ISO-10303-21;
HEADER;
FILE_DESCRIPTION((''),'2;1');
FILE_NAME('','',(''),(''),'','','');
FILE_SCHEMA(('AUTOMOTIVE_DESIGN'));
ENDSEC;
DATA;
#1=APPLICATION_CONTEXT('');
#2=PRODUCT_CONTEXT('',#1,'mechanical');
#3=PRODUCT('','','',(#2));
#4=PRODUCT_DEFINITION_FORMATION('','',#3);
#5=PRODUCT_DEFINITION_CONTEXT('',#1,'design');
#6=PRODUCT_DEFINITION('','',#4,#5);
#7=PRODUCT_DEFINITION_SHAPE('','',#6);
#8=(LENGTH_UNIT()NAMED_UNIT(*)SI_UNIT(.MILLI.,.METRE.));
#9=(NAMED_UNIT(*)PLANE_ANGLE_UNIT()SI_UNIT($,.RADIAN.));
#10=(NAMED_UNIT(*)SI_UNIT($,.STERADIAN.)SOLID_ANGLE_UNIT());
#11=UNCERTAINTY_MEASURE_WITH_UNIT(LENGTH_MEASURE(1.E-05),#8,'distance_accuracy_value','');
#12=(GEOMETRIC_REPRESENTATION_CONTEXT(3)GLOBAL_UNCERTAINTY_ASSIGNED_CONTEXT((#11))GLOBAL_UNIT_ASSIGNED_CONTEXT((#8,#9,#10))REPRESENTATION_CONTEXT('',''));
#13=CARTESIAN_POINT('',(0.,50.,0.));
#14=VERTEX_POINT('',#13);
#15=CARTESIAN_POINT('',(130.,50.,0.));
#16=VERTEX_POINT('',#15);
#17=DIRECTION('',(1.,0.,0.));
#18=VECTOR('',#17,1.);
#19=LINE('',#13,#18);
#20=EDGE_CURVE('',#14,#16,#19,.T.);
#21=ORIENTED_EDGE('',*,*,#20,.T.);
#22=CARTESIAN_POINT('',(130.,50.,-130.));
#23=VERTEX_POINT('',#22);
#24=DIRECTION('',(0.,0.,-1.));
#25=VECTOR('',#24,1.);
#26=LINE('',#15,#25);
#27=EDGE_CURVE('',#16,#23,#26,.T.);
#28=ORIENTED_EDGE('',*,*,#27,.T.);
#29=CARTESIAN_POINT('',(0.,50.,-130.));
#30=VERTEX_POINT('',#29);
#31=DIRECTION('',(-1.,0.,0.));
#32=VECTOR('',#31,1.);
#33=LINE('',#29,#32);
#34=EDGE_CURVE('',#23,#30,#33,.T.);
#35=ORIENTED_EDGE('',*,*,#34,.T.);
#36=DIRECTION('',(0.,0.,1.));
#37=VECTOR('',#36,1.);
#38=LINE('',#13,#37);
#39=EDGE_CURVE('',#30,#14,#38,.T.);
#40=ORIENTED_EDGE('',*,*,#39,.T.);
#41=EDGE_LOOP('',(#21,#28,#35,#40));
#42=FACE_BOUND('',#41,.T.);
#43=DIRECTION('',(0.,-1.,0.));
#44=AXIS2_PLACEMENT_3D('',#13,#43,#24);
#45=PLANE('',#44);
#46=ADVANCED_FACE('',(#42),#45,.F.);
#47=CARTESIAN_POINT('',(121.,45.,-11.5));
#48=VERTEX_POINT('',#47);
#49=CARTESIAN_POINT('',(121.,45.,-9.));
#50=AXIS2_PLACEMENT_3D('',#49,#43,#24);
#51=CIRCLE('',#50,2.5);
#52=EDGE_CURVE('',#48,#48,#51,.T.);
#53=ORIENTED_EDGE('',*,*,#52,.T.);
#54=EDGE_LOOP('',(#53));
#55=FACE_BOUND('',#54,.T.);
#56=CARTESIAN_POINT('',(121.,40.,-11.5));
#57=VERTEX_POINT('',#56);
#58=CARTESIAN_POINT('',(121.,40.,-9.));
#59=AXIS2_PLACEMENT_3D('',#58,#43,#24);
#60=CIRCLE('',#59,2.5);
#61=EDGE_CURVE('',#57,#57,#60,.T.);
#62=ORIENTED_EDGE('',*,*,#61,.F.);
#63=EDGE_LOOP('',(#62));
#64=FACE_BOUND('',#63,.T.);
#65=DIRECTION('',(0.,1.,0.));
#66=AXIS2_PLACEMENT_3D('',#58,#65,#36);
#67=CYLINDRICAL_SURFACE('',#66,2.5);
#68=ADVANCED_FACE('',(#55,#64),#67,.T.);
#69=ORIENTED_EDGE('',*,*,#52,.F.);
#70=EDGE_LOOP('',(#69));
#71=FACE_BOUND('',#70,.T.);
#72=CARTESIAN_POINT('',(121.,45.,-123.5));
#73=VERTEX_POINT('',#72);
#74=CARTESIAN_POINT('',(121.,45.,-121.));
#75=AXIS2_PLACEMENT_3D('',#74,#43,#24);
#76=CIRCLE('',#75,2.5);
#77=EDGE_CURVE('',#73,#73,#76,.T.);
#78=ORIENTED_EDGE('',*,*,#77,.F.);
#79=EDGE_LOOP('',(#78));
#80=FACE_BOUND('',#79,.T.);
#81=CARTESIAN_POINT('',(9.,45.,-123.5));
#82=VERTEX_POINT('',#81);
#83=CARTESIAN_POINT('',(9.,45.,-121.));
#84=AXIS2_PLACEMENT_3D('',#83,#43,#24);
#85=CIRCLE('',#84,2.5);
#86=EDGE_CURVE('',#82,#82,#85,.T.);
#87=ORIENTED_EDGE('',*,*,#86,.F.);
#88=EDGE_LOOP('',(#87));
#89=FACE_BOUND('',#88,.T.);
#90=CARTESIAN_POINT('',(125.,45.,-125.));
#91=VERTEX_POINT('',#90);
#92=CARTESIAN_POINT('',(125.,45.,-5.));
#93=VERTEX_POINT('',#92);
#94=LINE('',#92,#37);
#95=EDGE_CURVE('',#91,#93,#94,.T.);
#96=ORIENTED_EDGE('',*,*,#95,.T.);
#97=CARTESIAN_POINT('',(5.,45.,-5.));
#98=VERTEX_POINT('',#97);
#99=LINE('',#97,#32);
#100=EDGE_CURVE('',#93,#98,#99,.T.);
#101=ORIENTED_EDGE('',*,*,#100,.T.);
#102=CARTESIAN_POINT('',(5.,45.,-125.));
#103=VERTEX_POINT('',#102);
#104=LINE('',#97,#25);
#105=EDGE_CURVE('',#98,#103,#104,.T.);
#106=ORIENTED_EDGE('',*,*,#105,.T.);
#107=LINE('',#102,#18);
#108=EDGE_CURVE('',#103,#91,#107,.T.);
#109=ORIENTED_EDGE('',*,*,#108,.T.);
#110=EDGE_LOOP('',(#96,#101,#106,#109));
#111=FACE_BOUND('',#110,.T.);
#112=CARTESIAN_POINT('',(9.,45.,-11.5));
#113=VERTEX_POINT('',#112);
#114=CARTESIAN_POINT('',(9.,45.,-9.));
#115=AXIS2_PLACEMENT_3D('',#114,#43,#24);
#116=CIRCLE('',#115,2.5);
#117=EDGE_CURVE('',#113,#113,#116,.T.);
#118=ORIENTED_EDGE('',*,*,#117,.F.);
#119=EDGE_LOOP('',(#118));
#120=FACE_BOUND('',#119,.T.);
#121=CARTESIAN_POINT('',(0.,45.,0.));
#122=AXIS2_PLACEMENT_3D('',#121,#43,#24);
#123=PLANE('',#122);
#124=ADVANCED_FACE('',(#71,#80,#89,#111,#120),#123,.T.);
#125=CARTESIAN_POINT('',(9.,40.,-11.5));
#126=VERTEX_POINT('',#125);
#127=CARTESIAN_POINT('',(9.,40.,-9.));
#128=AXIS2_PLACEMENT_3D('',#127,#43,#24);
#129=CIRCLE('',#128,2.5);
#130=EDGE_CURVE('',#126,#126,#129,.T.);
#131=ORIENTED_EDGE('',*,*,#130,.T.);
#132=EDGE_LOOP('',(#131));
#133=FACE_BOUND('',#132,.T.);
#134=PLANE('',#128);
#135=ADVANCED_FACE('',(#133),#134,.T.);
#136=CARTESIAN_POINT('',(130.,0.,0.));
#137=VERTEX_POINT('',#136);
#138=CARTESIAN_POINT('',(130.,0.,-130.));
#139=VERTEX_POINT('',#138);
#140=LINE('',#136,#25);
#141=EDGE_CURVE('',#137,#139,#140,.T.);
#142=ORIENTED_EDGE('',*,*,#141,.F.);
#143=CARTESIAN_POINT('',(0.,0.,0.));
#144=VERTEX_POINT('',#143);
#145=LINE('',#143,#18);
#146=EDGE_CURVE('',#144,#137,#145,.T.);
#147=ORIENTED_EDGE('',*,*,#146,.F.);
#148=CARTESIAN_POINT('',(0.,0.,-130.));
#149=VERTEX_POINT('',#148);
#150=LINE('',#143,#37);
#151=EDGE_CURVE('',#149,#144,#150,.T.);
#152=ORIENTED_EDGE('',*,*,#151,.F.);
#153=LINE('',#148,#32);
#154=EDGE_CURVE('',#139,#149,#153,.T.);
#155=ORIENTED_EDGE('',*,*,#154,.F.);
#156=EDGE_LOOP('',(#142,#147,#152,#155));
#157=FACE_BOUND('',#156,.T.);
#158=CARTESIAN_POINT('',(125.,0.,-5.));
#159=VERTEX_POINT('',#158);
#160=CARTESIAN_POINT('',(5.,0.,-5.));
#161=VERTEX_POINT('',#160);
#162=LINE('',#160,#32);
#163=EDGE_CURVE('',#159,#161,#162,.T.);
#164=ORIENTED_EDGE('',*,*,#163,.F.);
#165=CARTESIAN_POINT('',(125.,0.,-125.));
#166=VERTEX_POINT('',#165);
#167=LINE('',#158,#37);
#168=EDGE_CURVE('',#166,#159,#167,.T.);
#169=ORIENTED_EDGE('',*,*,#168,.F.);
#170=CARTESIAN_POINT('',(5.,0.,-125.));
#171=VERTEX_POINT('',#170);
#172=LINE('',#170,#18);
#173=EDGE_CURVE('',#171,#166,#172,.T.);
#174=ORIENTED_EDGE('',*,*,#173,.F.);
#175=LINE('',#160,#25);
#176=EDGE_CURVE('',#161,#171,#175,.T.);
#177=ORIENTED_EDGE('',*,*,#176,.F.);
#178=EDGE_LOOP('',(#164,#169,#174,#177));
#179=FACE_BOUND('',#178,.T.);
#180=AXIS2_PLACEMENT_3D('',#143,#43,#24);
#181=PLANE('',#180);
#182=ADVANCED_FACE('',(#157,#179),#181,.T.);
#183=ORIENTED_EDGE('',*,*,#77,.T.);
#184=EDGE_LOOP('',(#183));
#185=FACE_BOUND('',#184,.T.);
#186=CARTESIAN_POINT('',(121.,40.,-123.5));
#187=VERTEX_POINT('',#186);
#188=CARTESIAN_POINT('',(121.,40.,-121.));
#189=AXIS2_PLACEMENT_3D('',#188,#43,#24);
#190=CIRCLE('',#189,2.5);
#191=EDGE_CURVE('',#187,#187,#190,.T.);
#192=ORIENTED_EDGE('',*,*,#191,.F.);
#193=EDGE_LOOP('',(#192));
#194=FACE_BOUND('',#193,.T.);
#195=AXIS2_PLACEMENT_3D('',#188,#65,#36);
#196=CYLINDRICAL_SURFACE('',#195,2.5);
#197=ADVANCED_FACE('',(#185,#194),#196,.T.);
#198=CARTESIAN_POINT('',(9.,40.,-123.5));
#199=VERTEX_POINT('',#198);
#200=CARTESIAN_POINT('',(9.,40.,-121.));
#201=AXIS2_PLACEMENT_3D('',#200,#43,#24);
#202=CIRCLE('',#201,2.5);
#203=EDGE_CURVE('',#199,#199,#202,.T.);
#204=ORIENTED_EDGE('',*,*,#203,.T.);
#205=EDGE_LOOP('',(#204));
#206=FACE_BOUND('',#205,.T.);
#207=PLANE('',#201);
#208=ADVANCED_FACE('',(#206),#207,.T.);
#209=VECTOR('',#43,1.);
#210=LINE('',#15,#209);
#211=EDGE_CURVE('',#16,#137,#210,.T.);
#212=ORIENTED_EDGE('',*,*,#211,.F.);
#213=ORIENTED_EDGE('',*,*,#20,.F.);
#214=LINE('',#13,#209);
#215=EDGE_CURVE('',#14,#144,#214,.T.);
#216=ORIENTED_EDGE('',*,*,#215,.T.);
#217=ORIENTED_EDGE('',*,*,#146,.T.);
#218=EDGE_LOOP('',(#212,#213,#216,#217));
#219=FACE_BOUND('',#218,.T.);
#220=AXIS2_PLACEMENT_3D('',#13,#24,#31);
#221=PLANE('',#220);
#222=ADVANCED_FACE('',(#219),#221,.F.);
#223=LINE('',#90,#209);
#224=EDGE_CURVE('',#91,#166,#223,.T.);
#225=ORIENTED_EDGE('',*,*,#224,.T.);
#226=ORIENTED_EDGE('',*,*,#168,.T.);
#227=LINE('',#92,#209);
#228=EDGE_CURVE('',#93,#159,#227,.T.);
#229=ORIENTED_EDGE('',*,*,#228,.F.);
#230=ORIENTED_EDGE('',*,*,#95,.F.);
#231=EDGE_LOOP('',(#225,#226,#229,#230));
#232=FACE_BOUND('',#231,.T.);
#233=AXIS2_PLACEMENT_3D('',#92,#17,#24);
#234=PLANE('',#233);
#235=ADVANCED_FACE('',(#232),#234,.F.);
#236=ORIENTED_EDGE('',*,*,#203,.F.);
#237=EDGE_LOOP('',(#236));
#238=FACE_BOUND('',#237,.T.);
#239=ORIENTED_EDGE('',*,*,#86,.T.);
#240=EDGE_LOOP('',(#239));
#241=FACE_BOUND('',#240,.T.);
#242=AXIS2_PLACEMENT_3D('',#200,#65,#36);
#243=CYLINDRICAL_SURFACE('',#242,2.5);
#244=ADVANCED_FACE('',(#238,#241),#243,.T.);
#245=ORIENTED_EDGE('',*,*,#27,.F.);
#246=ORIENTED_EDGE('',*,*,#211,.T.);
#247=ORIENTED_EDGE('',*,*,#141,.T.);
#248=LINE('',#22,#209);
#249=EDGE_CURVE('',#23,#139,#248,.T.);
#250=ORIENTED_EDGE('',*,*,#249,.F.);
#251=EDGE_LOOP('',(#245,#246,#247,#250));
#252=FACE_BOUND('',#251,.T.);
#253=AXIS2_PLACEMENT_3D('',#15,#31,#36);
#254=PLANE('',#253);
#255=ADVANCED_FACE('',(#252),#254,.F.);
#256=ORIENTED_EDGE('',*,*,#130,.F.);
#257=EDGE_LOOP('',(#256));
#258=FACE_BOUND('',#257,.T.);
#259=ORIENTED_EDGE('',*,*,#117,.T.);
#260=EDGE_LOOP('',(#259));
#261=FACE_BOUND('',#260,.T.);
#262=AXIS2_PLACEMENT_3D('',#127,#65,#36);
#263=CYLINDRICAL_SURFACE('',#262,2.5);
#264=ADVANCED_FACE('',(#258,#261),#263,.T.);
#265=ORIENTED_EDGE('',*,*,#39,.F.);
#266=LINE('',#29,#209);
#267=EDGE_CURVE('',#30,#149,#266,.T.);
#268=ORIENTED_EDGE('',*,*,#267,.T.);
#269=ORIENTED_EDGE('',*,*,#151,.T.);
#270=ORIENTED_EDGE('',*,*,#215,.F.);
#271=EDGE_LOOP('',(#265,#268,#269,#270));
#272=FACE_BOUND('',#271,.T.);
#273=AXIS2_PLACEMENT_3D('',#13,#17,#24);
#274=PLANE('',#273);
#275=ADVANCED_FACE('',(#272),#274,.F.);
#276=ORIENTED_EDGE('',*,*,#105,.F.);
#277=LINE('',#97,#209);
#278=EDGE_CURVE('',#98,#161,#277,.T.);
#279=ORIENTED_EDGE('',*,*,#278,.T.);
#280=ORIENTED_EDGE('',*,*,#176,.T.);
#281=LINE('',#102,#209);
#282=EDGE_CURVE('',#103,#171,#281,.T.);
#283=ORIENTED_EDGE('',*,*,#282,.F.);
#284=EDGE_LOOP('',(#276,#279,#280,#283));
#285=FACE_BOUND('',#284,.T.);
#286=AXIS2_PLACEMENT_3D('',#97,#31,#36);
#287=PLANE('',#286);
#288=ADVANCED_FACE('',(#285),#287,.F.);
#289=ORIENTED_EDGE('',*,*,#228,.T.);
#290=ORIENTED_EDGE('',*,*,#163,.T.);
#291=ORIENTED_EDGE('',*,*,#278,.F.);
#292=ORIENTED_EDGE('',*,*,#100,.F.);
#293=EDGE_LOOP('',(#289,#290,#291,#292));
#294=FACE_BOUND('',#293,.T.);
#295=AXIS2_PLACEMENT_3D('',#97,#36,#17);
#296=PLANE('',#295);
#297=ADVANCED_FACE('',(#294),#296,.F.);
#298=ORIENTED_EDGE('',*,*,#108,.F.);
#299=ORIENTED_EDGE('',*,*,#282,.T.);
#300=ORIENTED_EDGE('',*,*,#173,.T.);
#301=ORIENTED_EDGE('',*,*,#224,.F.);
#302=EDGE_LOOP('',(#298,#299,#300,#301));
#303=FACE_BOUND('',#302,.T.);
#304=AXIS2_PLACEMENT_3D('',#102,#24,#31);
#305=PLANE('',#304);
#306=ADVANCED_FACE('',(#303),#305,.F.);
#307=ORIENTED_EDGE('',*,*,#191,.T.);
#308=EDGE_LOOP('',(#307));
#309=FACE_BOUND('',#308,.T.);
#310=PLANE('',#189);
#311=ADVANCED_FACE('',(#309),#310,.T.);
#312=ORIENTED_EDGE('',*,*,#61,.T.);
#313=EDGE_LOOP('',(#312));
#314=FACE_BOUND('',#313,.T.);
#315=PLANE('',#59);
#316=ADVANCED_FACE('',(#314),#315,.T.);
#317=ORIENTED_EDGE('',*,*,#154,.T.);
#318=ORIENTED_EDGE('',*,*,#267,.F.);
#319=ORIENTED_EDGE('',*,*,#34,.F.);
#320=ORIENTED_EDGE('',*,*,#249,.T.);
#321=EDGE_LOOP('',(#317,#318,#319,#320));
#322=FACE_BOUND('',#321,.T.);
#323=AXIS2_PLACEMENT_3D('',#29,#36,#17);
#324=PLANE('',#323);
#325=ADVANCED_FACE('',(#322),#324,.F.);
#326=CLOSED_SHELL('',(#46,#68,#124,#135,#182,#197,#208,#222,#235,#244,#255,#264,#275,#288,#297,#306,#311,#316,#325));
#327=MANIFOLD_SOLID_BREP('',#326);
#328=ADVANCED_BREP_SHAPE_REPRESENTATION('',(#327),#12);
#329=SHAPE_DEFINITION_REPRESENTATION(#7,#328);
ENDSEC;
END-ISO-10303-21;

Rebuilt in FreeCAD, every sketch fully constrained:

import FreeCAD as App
import Part
import Sketcher

doc = App.newDocument("Part")
body = doc.addObject("PartDesign::Body", "Body")

# Sketch on XZ plane
sketch1 = body.newObject("Sketcher::SketchObject", "Sketch")
sketch1.AttachmentSupport = (doc.getObject("XZ_Plane"), [""])
sketch1.MapMode = "FlatFace"
sketch1.addGeometry([
    Part.LineSegment(App.Vector(0, -130, 0), App.Vector(0, 0, 0)),
    Part.LineSegment(App.Vector(0, 0, 0), App.Vector(130, 0, 0)),
    Part.LineSegment(App.Vector(130, 0, 0), App.Vector(130, -130, 0)),
    Part.LineSegment(App.Vector(130, -130, 0), App.Vector(0, -130, 0)),
], False)
sketch1.addConstraint([
    Sketcher.Constraint("Coincident", 0, 2, 1, 1),
    Sketcher.Constraint("Coincident", 1, 2, 2, 1),
    Sketcher.Constraint("Coincident", 2, 2, 3, 1),
    Sketcher.Constraint("Coincident", 3, 2, 0, 1),
    Sketcher.Constraint("Vertical", 0),
    Sketcher.Constraint("Horizontal", 1),
    Sketcher.Constraint("Vertical", 2),
    Sketcher.Constraint("Horizontal", 3),
    Sketcher.Constraint("Coincident", 0, 2, -1, 1),
    Sketcher.Constraint("Equal", 3, 0),
    Sketcher.Constraint("DistanceX", 1, 1, 1, 2, 130.0),
])
pad1 = body.newObject("PartDesign::Pad", "Pad")
pad1.Profile = sketch1
pad1.Length = 50
pad1.Reversed = True

# Sketch on XZ plane
sketch2 = body.newObject("Sketcher::SketchObject", "Sketch001")
sketch2.AttachmentSupport = (doc.getObject("XZ_Plane"), [""])
sketch2.MapMode = "FlatFace"
sketch2.addGeometry([
    Part.LineSegment(App.Vector(5, -5, 0), App.Vector(5, -125, 0)),
    Part.LineSegment(App.Vector(5, -125, 0), App.Vector(125, -125, 0)),
    Part.LineSegment(App.Vector(125, -125, 0), App.Vector(125, -5, 0)),
    Part.LineSegment(App.Vector(125, -5, 0), App.Vector(5, -5, 0)),
], False)
sketch2.addConstraint([
    Sketcher.Constraint("Coincident", 0, 2, 1, 1),
    Sketcher.Constraint("Coincident", 1, 2, 2, 1),
    Sketcher.Constraint("Coincident", 2, 2, 3, 1),
    Sketcher.Constraint("Coincident", 3, 2, 0, 1),
    Sketcher.Constraint("Vertical", 0),
    Sketcher.Constraint("Horizontal", 1),
    Sketcher.Constraint("Vertical", 2),
    Sketcher.Constraint("Horizontal", 3),
    Sketcher.Constraint("Equal", 3, 0),
    Sketcher.Constraint("DistanceX", 1, 1, 1, 2, 120.0),
    Sketcher.Constraint("DistanceX", -1, 1, 0, 2, 5.0),
    Sketcher.Constraint("DistanceY", 0, 2, -1, 1, 125.0),
])
pocket1 = body.newObject("PartDesign::Pocket", "Pocket")
pocket1.Profile = sketch2
pocket1.Length = 45

# Sketch on XZ plane
sketch3 = body.newObject("Sketcher::SketchObject", "Sketch002")
sketch3.AttachmentSupport = (doc.getObject("XZ_Plane"), [""])
sketch3.MapMode = "FlatFace"
sketch3.AttachmentOffset = App.Placement(App.Vector(0, 0, -45), App.Rotation())
sketch3.addGeometry([
    Part.Circle(App.Vector(9, -121, 0), App.Vector(0, 0, 1), 2.5),
    Part.Circle(App.Vector(121, -121, 0), App.Vector(0, 0, 1), 2.5),
    Part.Circle(App.Vector(9, -9, 0), App.Vector(0, 0, 1), 2.5),
    Part.Circle(App.Vector(121, -9, 0), App.Vector(0, 0, 1), 2.5),
], False)
sketch3.addConstraint([
    Sketcher.Constraint("Equal", 0, 1),
    Sketcher.Constraint("Equal", 1, 2),
    Sketcher.Constraint("Equal", 2, 3),
    Sketcher.Constraint("Horizontal", 0, 3, 1, 3),
    Sketcher.Constraint("Horizontal", 2, 3, 3, 3),
    Sketcher.Constraint("Vertical", 0, 3, 2, 3),
    Sketcher.Constraint("Vertical", 1, 3, 3, 3),
    Sketcher.Constraint("Diameter", 0, 5.0),
    Sketcher.Constraint("DistanceX", -1, 1, 0, 3, 9.0),
    Sketcher.Constraint("DistanceY", 0, 3, -1, 1, 121.0),
    Sketcher.Constraint("DistanceX", -1, 1, 1, 3, 121.0),
    Sketcher.Constraint("DistanceY", 2, 3, -1, 1, 9.0),
])
pad2 = body.newObject("PartDesign::Pad", "Pad001")
pad2.Profile = sketch3
pad2.Length = 5

doc.recompute()
